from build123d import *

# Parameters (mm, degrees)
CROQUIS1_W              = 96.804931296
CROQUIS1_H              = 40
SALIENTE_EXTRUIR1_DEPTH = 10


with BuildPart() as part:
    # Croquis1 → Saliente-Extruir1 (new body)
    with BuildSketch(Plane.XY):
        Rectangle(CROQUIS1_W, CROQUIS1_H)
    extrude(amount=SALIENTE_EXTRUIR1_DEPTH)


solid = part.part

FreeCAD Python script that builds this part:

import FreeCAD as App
import Part
import Sketcher

V = App.Vector

doc = App.newDocument("Part")
body = doc.addObject("PartDesign::Body", "Body")

sketch1 = body.newObject("Sketcher::SketchObject", "Sketch")
sketch1.AttachmentSupport = (doc.getObject("XY_Plane"), [""])
sketch1.MapMode = "FlatFace"
sketch1.addGeometry([
    Part.LineSegment(V(-48.402466, 20, 0), V(-48.402466, -20, 0)),
    Part.LineSegment(V(-48.402466, -20, 0), V(48.402466, -20, 0)),
    Part.LineSegment(V(48.402466, -20, 0), V(48.402466, 20, 0)),
    Part.LineSegment(V(48.402466, 20, 0), V(-48.402466, 20, 0)),
], False)
sketch1.addConstraint([
    Sketcher.Constraint("Coincident", 0, 2, 1, 1),
    Sketcher.Constraint("Coincident", 1, 2, 2, 1),
    Sketcher.Constraint("Coincident", 2, 2, 3, 1),
    Sketcher.Constraint("Coincident", 3, 2, 0, 1),
    Sketcher.Constraint("Vertical", 0),
    Sketcher.Constraint("Horizontal", 1),
    Sketcher.Constraint("Vertical", 2),
    Sketcher.Constraint("Horizontal", 3),
    Sketcher.Constraint("Symmetric", 0, 2, 2, 2, -1, 1),
    Sketcher.Constraint("DistanceY", 0, 2, 0, 1, 40.0),
    Sketcher.Constraint("DistanceX", 1, 1, 1, 2, 96.804931),
])
pad1 = body.newObject("PartDesign::Pad", "Pad")
pad1.Profile = sketch1
pad1.Length = 10

doc.recompute()
